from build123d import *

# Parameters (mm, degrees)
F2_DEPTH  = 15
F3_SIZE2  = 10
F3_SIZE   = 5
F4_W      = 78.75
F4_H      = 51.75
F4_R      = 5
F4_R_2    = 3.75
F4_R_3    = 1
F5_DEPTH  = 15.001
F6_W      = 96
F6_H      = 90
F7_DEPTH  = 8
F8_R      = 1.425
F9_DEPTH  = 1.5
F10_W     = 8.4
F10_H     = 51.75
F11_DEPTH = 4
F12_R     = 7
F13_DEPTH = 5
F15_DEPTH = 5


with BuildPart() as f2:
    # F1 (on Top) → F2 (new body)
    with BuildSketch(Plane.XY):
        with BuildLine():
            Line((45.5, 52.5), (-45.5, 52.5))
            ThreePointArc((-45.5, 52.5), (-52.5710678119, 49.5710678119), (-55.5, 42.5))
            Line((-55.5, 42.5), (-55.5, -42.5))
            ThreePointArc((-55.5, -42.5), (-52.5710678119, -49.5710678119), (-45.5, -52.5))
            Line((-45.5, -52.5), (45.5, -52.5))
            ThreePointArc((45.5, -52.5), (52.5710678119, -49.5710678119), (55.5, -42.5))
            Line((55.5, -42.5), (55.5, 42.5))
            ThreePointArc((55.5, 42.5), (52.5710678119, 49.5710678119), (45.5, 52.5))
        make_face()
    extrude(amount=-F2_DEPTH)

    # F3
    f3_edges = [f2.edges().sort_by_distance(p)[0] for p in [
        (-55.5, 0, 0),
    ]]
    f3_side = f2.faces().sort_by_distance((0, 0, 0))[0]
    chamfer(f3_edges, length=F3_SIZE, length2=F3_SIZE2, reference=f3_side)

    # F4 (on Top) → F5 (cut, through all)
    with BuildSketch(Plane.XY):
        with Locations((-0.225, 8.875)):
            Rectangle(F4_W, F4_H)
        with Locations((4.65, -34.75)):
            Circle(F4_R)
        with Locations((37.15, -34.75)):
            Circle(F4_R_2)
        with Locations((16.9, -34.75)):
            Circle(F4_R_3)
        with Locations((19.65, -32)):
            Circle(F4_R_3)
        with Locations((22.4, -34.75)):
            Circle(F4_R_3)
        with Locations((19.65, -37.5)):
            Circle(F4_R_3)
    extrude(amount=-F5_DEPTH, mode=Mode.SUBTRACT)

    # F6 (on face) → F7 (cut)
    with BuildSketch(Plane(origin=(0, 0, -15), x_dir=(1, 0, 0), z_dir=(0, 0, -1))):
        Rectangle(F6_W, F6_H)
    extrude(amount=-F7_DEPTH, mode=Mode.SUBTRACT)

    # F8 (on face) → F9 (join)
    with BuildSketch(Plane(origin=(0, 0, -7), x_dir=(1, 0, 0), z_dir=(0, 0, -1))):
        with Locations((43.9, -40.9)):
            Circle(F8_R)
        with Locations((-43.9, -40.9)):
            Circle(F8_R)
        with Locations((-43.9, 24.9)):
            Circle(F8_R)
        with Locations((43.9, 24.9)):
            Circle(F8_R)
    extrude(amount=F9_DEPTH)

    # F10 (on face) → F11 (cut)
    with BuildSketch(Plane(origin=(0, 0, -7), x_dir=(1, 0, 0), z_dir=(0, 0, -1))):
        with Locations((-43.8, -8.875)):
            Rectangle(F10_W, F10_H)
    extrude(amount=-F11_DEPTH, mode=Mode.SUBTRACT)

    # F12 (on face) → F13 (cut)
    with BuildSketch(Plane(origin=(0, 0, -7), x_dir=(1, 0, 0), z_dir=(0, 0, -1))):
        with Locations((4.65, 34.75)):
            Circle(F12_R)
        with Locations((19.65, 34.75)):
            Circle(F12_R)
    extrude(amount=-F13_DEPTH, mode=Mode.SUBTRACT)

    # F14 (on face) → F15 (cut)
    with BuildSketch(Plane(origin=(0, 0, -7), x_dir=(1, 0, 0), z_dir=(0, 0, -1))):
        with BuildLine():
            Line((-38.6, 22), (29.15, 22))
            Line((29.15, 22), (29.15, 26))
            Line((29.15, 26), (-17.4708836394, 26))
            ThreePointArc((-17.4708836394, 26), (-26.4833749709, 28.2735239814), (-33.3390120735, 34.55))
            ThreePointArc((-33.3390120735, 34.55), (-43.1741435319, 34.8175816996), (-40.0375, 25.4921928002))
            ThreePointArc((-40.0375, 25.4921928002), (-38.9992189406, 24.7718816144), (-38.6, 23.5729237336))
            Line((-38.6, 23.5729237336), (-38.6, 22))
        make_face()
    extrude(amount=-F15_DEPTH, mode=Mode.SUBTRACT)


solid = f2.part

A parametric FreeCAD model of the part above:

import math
import FreeCAD as App
import Part
import Sketcher


def edges_at(feature, points):
    """Names of the edges that pass closest to the given points."""
    edges = feature.Shape.Edges
    near = lambda p: min(range(len(edges)), key=lambda i: edges[i].distToShape(Part.Vertex(*p))[0])
    return sorted({f"Edge{near(p) + 1}" for p in points})

doc = App.newDocument("Part")
body = doc.addObject("PartDesign::Body", "Body")

sketch1 = doc.addObject("Sketcher::SketchObject", "Sketch")
body.addObject(sketch1)
sketch1.AttachmentSupport = (doc.XY_Plane, [""])
sketch1.MapMode = "FlatFace"
sketch1.addGeometry([
    Part.LineSegment(App.Vector(46, 52, 0), App.Vector(-46, 52, 0)),
    Part.ArcOfCircle(Part.Circle(App.Vector(-46, 42, 0), App.Vector(0, 0, 1), 10), math.radians(90), math.radians(180)),
    Part.LineSegment(App.Vector(-56, 42, 0), App.Vector(-56, -42, 0)),
    Part.ArcOfCircle(Part.Circle(App.Vector(-46, -42, 0), App.Vector(0, 0, 1), 10), math.radians(180), math.radians(270)),
    Part.LineSegment(App.Vector(-46, -52, 0), App.Vector(46, -52, 0)),
    Part.ArcOfCircle(Part.Circle(App.Vector(46, -42, 0), App.Vector(0, 0, 1), 10), math.radians(-90), math.radians(0)),
    Part.LineSegment(App.Vector(56, -42, 0), App.Vector(56, 42, 0)),
    Part.ArcOfCircle(Part.Circle(App.Vector(46, 42, 0), App.Vector(0, 0, 1), 10), math.radians(0), math.radians(90)),
], False)
sketch1.addConstraint([
    Sketcher.Constraint("Tangent", 0, 2, 1, 1),
    Sketcher.Constraint("Tangent", 1, 2, 2, 1),
    Sketcher.Constraint("Tangent", 2, 2, 3, 1),
    Sketcher.Constraint("Tangent", 3, 2, 4, 1),
    Sketcher.Constraint("Tangent", 4, 2, 5, 1),
    Sketcher.Constraint("Tangent", 5, 2, 6, 1),
    Sketcher.Constraint("Tangent", 6, 2, 7, 1),
    Sketcher.Constraint("Tangent", 7, 2, 0, 1),
    Sketcher.Constraint("Horizontal", 0),
    Sketcher.Constraint("Vertical", 2),
    Sketcher.Constraint("Horizontal", 4),
    Sketcher.Constraint("Vertical", 6),
    Sketcher.Constraint("Equal", 1, 3),
    Sketcher.Constraint("Equal", 3, 5),
    Sketcher.Constraint("Equal", 5, 7),
    Sketcher.Constraint("Symmetric", 1, 3, 5, 3, -1, 1),
    Sketcher.Constraint("Radius", 1, 10.0),
    Sketcher.Constraint("DistanceX", 0, 2, 0, 1, 91.0),
    Sketcher.Constraint("DistanceY", 2, 2, 2, 1, 85.0),
])
pad1 = doc.addObject("PartDesign::Pad", "Pad")
body.addObject(pad1)
pad1.Profile = sketch1
pad1.Length = 15
pad1.Reversed = True
doc.recompute()

chamfer = doc.addObject("PartDesign::Chamfer", "Chamfer")
body.addObject(chamfer)
chamfer.Base = (pad1, edges_at(pad1, [(-55.5, 0, 0)]))
chamfer.ChamferType = "Two distances"
chamfer.Size = 5
chamfer.Size2 = 10
chamfer.FlipDirection = True

sketch2 = doc.addObject("Sketcher::SketchObject", "Sketch001")
body.addObject(sketch2)
sketch2.AttachmentSupport = (doc.XY_Plane, [""])
sketch2.MapMode = "FlatFace"
sketch2.addGeometry([
    Part.LineSegment(App.Vector(-39.6, 34.8, 0), App.Vector(-39.6, -17, 0)),
    Part.LineSegment(App.Vector(-39.6, -17, 0), App.Vector(39.1, -17, 0)),
    Part.LineSegment(App.Vector(39.1, -17, 0), App.Vector(39.1, 34.8, 0)),
    Part.LineSegment(App.Vector(39.1, 34.8, 0), App.Vector(-39.6, 34.8, 0)),
    Part.Circle(App.Vector(4.7, -34.8, 0), App.Vector(0, 0, 1), 5),
    Part.Circle(App.Vector(37.1, -34.8, 0), App.Vector(0, 0, 1), 3.8),
    Part.Circle(App.Vector(16.9, -34.8, 0), App.Vector(0, 0, 1), 1),
    Part.Circle(App.Vector(19.6, -32, 0), App.Vector(0, 0, 1), 1),
    Part.Circle(App.Vector(22.4, -34.8, 0), App.Vector(0, 0, 1), 1),
    Part.Circle(App.Vector(19.6, -37.5, 0), App.Vector(0, 0, 1), 1),
], False)
sketch2.addConstraint([
    Sketcher.Constraint("Coincident", 0, 2, 1, 1),
    Sketcher.Constraint("Coincident", 1, 2, 2, 1),
    Sketcher.Constraint("Coincident", 2, 2, 3, 1),
    Sketcher.Constraint("Coincident", 3, 2, 0, 1),
    Sketcher.Constraint("Vertical", 0),
    Sketcher.Constraint("Horizontal", 1),
    Sketcher.Constraint("Vertical", 2),
    Sketcher.Constraint("Horizontal", 3),
    Sketcher.Constraint("Equal", 6, 7),
    Sketcher.Constraint("Equal", 7, 8),
    Sketcher.Constraint("Equal", 8, 9),
    Sketcher.Constraint("Horizontal", 4, 3, 5, 3),
    Sketcher.Constraint("Horizontal", 5, 3, 6, 3),
    Sketcher.Constraint("Horizontal", 6, 3, 8, 3),
    Sketcher.Constraint("Vertical", 7, 3, 9, 3),
    Sketcher.Constraint("Diameter", 4, 10.0),
    Sketcher.Constraint("Diameter", 6, 2.0),
    Sketcher.Constraint("Diameter", 5, 7.5),
    Sketcher.Constraint("DistanceY", 7, 3, -1, 1, 32.0),
    Sketcher.Constraint("DistanceY", 0, 2, -1, 1, 17.0),
    Sketcher.Constraint("DistanceX", 4, 3, 7, 3, 15.0),
    Sketcher.Constraint("DistanceX", 0, 2, 8, 3, 62.0),
    Sketcher.Constraint("DistanceX", 5, 3, 1, 2, 2.0),
    Sketcher.Constraint("DistanceX", 1, 1, 1, 2, 78.75),
    Sketcher.Constraint("DistanceY", 0, 2, 0, 1, 51.75),
    Sketcher.Constraint("DistanceX", -1, 1, 6, 3, 16.9),
    Sketcher.Constraint("DistanceX", -1, 1, 8, 3, 22.4),
    Sketcher.Constraint("DistanceY", 9, 3, -1, 1, 37.5),
    Sketcher.Constraint("DistanceX", 4, 3, 5, 3, 32.5),
    Sketcher.Constraint("DistanceY", 5, 3, 2, 2, 69.5),
])
pocket1 = doc.addObject("PartDesign::Pocket", "Pocket")
body.addObject(pocket1)
pocket1.Profile = sketch2
pocket1.Type = "ThroughAll"

sketch3 = doc.addObject("Sketcher::SketchObject", "Sketch002")
body.addObject(sketch3)
sketch3.AttachmentSupport = (doc.XY_Plane, [""])
sketch3.MapMode = "FlatFace"
sketch3.AttachmentOffset = App.Placement(App.Vector(0, 0, -15), App.Rotation())
sketch3.addGeometry([
    Part.LineSegment(App.Vector(-48, -45, 0), App.Vector(-48, 45, 0)),
    Part.LineSegment(App.Vector(-48, 45, 0), App.Vector(48, 45, 0)),
    Part.LineSegment(App.Vector(48, 45, 0), App.Vector(48, -45, 0)),
    Part.LineSegment(App.Vector(48, -45, 0), App.Vector(-48, -45, 0)),
], False)
sketch3.addConstraint([
    Sketcher.Constraint("Coincident", 0, 2, 1, 1),
    Sketcher.Constraint("Coincident", 1, 2, 2, 1),
    Sketcher.Constraint("Coincident", 2, 2, 3, 1),
    Sketcher.Constraint("Coincident", 3, 2, 0, 1),
    Sketcher.Constraint("Vertical", 0),
    Sketcher.Constraint("Horizontal", 1),
    Sketcher.Constraint("Vertical", 2),
    Sketcher.Constraint("Horizontal", 3),
    Sketcher.Constraint("Symmetric", 0, 2, 2, 2, -1, 1),
    Sketcher.Constraint("DistanceX", 1, 1, 1, 2, 96.0),
    Sketcher.Constraint("DistanceY", 0, 1, 0, 2, 90.0),
])
pocket2 = doc.addObject("PartDesign::Pocket", "Pocket001")
body.addObject(pocket2)
pocket2.Profile = sketch3
pocket2.Length = 8
pocket2.Reversed = True

sketch4 = doc.addObject("Sketcher::SketchObject", "Sketch003")
body.addObject(sketch4)
sketch4.AttachmentSupport = (doc.XY_Plane, [""])
sketch4.MapMode = "FlatFace"
sketch4.AttachmentOffset = App.Placement(App.Vector(0, 0, -7), App.Rotation())
sketch4.addGeometry([
    Part.Circle(App.Vector(43.9, 40.9, 0), App.Vector(0, 0, 1), 1.4),
    Part.Circle(App.Vector(-43.9, 40.9, 0), App.Vector(0, 0, 1), 1.4),
    Part.Circle(App.Vector(-43.9, -24.9, 0), App.Vector(0, 0, 1), 1.4),
    Part.Circle(App.Vector(43.9, -24.9, 0), App.Vector(0, 0, 1), 1.4),
], False)
sketch4.addConstraint([
    Sketcher.Constraint("Equal", 0, 1),
    Sketcher.Constraint("Equal", 1, 2),
    Sketcher.Constraint("Equal", 2, 3),
    Sketcher.Constraint("Symmetric", 0, 3, 1, 3, -2),
    Sketcher.Constraint("Symmetric", 2, 3, 3, 3, -2),
    Sketcher.Constraint("Vertical", 1, 3, 2, 3),
    Sketcher.Constraint("Diameter", 0, 2.85),
    Sketcher.Constraint("DistanceX", -1, 1, 0, 3, 43.9),
    Sketcher.Constraint("DistanceY", -1, 1, 0, 3, 40.9),
    Sketcher.Constraint("DistanceY", 2, 3, -1, 1, 24.9),
])
pad2 = doc.addObject("PartDesign::Pad", "Pad001")
body.addObject(pad2)
pad2.Profile = sketch4
pad2.Length = 1.5
pad2.Reversed = True

sketch5 = doc.addObject("Sketcher::SketchObject", "Sketch004")
body.addObject(sketch5)
sketch5.AttachmentSupport = (doc.XY_Plane, [""])
sketch5.MapMode = "FlatFace"
sketch5.AttachmentOffset = App.Placement(App.Vector(0, 0, -7), App.Rotation())
sketch5.addGeometry([
    Part.LineSegment(App.Vector(-48, -17, 0), App.Vector(-48, 35, 0)),
    Part.LineSegment(App.Vector(-48, 35, 0), App.Vector(-40, 35, 0)),
    Part.LineSegment(App.Vector(-40, 35, 0), App.Vector(-40, -17, 0)),
    Part.LineSegment(App.Vector(-40, -17, 0), App.Vector(-48, -17, 0)),
], False)
sketch5.addConstraint([
    Sketcher.Constraint("Coincident", 0, 2, 1, 1),
    Sketcher.Constraint("Coincident", 1, 2, 2, 1),
    Sketcher.Constraint("Coincident", 2, 2, 3, 1),
    Sketcher.Constraint("Coincident", 3, 2, 0, 1),
    Sketcher.Constraint("Vertical", 0),
    Sketcher.Constraint("Horizontal", 1),
    Sketcher.Constraint("Vertical", 2),
    Sketcher.Constraint("Horizontal", 3),
    Sketcher.Constraint("DistanceX", 1, 1, 1, 2, 8.4),
    Sketcher.Constraint("DistanceX", 0, 2, -1, 1, 48.0),
    Sketcher.Constraint("DistanceY", 2, 2, -1, 1, 17.0),
    Sketcher.Constraint("DistanceY", 0, 1, 0, 2, 51.75),
])
pocket3 = doc.addObject("PartDesign::Pocket", "Pocket002")
body.addObject(pocket3)
pocket3.Profile = sketch5
pocket3.Length = 4
pocket3.Reversed = True

sketch6 = doc.addObject("Sketcher::SketchObject", "Sketch005")
body.addObject(sketch6)
sketch6.AttachmentSupport = (doc.XY_Plane, [""])
sketch6.MapMode = "FlatFace"
sketch6.AttachmentOffset = App.Placement(App.Vector(0, 0, -7), App.Rotation())
sketch6.addGeometry([
    Part.Circle(App.Vector(5, -35, 0), App.Vector(0, 0, 1), 7),
    Part.Circle(App.Vector(20, -35, 0), App.Vector(0, 0, 1), 7),
], False)
sketch6.addConstraint([
    Sketcher.Constraint("Equal", 0, 1),
    Sketcher.Constraint("Horizontal", 0, 3, 1, 3),
    Sketcher.Constraint("Diameter", 0, 14.0),
    Sketcher.Constraint("DistanceX", 0, 3, 1, 3, 15.0),
    Sketcher.Constraint("DistanceX", -1, 1, 0, 3, 4.65),
    Sketcher.Constraint("DistanceY", 0, 3, -1, 1, 34.75),
])
pocket4 = doc.addObject("PartDesign::Pocket", "Pocket003")
body.addObject(pocket4)
pocket4.Profile = sketch6
pocket4.Length = 5
pocket4.Reversed = True

sketch7 = doc.addObject("Sketcher::SketchObject", "Sketch006")
body.addObject(sketch7)
sketch7.AttachmentSupport = (doc.XY_Plane, [""])
sketch7.MapMode = "FlatFace"
sketch7.AttachmentOffset = App.Placement(App.Vector(0, 0, -7), App.Rotation())
sketch7.addGeometry([
    Part.LineSegment(App.Vector(-38.6, -22, 0), App.Vector(29.1, -22, 0)),
    Part.LineSegment(App.Vector(29.1, -22, 0), App.Vector(29.1, -26, 0)),
    Part.LineSegment(App.Vector(29.1, -26, 0), App.Vector(-17.5, -26, 0)),
    Part.ArcOfCircle(Part.Circle(App.Vector(-17.5, -45, 0), App.Vector(0, 0, 1), 19), math.radians(90), math.radians(147)),
    Part.ArcOfCircle(Part.Circle(App.Vector(-38.4, -31.2, 0), App.Vector(0, 0, 1), 6), math.radians(106), math.radians(327)),
    Part.ArcOfCircle(Part.Circle(App.Vector(-40.6, -23.6, 0), App.Vector(0, 0, 1), 2), math.radians(-74), math.radians(0)),
    Part.LineSegment(App.Vector(-38.6, -23.6, 0), App.Vector(-38.6, -22, 0)),
], False)
sketch7.addConstraint([
    Sketcher.Constraint("Coincident", 0, 2, 1, 1),
    Sketcher.Constraint("Coincident", 1, 2, 2, 1),
    Sketcher.Constraint("Tangent", 2, 2, 3, 1),
    Sketcher.Constraint("Tangent", 3, 2, 4, 2),
    Sketcher.Constraint("Tangent", 4, 1, 5, 1),
    Sketcher.Constraint("Tangent", 5, 2, 6, 1),
    Sketcher.Constraint("Coincident", 6, 2, 0, 1),
    Sketcher.Constraint("Horizontal", 0),
    Sketcher.Constraint("Vertical", 1),
    Sketcher.Constraint("Horizontal", 2),
    Sketcher.Constraint("Vertical", 6),
    Sketcher.Constraint("Radius", 3, 19.0),
    Sketcher.Constraint("Radius", 4, 6.0),
    Sketcher.Constraint("Radius", 5, 2.0),
    Sketcher.Constraint("DistanceY", 1, 2, 1, 1, 4.0),
    Sketcher.Constraint("DistanceY", 3, 3, -1, 1, 45.0),
    Sketcher.Constraint("DistanceX", 0, 1, 0, 2, 67.75),
    Sketcher.Constraint("DistanceX", 5, 3, -1, 1, 40.6),
    Sketcher.Constraint("DistanceX", 4, 3, 0, 2, 67.5),
    Sketcher.Constraint("DistanceY", 3, 2, 4, 3, 3.3),
])
pocket5 = doc.addObject("PartDesign::Pocket", "Pocket004")
body.addObject(pocket5)
pocket5.Profile = sketch7
pocket5.Length = 5
pocket5.Reversed = True

doc.recompute()
